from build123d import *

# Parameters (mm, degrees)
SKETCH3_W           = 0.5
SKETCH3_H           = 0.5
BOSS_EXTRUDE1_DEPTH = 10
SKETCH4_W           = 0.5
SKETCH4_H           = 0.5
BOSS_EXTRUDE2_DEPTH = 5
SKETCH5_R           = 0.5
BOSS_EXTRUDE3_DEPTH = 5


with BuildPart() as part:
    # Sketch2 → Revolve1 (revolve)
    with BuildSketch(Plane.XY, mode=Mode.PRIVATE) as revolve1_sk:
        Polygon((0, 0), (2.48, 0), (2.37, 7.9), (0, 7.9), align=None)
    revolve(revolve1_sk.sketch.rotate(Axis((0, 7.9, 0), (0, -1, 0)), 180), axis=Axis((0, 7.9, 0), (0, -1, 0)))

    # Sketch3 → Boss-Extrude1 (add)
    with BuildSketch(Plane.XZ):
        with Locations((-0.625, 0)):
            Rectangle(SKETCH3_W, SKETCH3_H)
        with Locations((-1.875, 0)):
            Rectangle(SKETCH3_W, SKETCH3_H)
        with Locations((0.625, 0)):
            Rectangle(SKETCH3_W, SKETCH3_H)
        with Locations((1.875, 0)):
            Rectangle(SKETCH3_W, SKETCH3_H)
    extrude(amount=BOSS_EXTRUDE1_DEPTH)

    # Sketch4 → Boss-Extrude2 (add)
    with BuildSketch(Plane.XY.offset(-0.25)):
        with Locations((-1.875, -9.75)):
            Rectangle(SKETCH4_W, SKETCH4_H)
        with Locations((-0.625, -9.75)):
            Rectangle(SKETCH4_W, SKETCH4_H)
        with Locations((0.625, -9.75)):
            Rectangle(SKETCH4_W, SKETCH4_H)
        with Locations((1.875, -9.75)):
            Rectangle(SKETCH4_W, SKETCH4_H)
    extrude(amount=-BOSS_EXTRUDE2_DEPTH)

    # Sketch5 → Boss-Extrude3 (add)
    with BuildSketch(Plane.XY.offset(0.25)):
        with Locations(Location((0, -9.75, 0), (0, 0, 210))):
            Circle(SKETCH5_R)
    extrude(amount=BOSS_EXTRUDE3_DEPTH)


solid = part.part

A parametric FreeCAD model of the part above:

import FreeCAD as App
import Part
import Sketcher
from FreeCAD import Vector
Q = App.Units.Quantity

doc = App.newDocument("Part")
body = doc.addObject("PartDesign::Body", "Body")

# Sketch on XY plane
sketch1 = doc.addObject("Sketcher::SketchObject", "Sketch")
body.addObject(sketch1)
sketch1.AttachmentSupport = (doc.XY_Plane, [""])
sketch1.MapMode = "FlatFace"
sketch1.addGeometry([
    Part.LineSegment(Vector(0, 0, 0), Vector(2.5, 0, 0)),
    Part.LineSegment(Vector(2.5, 0, 0), Vector(2.4, 7.9, 0)),
    Part.LineSegment(Vector(2.4, 7.9, 0), Vector(0, 7.9, 0)),
    Part.LineSegment(Vector(0, 7.9, 0), Vector(0, 0, 0)),
], False)
sketch1.addConstraint([
    Sketcher.Constraint("Coincident", 0, 2, 1, 1),
    Sketcher.Constraint("Coincident", 1, 2, 2, 1),
    Sketcher.Constraint("Coincident", 2, 2, 3, 1),
    Sketcher.Constraint("Coincident", 3, 2, 0, 1),
    Sketcher.Constraint("Horizontal", 0),
    Sketcher.Constraint("Horizontal", 2),
    Sketcher.Constraint("Vertical", 3),
    Sketcher.Constraint("Coincident", 3, 2, -1, 1),
    Sketcher.Constraint("DistanceY", 3, 2, 3, 1, Q("7.9 mm")),
    Sketcher.Constraint("DistanceX", 0, 1, 0, 2, Q("2.48 mm")),
    Sketcher.Constraint("DistanceX", 2, 2, 2, 1, Q("2.37 mm")),
])
revolution = doc.addObject("PartDesign::Revolution", "Revolution")
body.addObject(revolution)
revolution.Profile = sketch1
revolution.ReferenceAxis = (sketch1, ["V_Axis"])
revolution.Angle = 360

# Sketch on XZ plane
sketch2 = doc.addObject("Sketcher::SketchObject", "Sketch001")
body.addObject(sketch2)
sketch2.AttachmentSupport = (doc.XZ_Plane, [""])
sketch2.MapMode = "FlatFace"
sketch2.addGeometry([
    Part.LineSegment(Vector(-0.9, 0.2, 0), Vector(-0.9, -0.2, 0)),  # 0
    Part.LineSegment(Vector(-0.9, -0.2, 0), Vector(-0.4, -0.2, 0)),  # 1
    Part.LineSegment(Vector(-0.4, -0.2, 0), Vector(-0.4, 0.2, 0)),  # 2
    Part.LineSegment(Vector(-0.4, 0.2, 0), Vector(-0.9, 0.2, 0)),  # 3
    Part.LineSegment(Vector(-2.1, 0.2, 0), Vector(-2.1, -0.2, 0)),  # 4
    Part.LineSegment(Vector(-2.1, -0.2, 0), Vector(-1.6, -0.2, 0)),  # 5
    Part.LineSegment(Vector(-1.6, -0.2, 0), Vector(-1.6, 0.2, 0)),  # 6
    Part.LineSegment(Vector(-1.6, 0.2, 0), Vector(-2.1, 0.2, 0)),  # 7
    Part.LineSegment(Vector(0.4, 0.2, 0), Vector(0.4, -0.2, 0)),  # 8
    Part.LineSegment(Vector(0.4, -0.2, 0), Vector(0.9, -0.2, 0)),  # 9
    Part.LineSegment(Vector(0.9, -0.2, 0), Vector(0.9, 0.2, 0)),  # 10
    Part.LineSegment(Vector(0.9, 0.2, 0), Vector(0.4, 0.2, 0)),  # 11
    Part.LineSegment(Vector(1.6, 0.2, 0), Vector(1.6, -0.2, 0)),  # 12
    Part.LineSegment(Vector(1.6, -0.2, 0), Vector(2.1, -0.2, 0)),  # 13
    Part.LineSegment(Vector(2.1, -0.2, 0), Vector(2.1, 0.2, 0)),  # 14
    Part.LineSegment(Vector(2.1, 0.2, 0), Vector(1.6, 0.2, 0)),  # 15
], False)
sketch2.addConstraint([
    Sketcher.Constraint("Coincident", 0, 2, 1, 1),
    Sketcher.Constraint("Coincident", 1, 2, 2, 1),
    Sketcher.Constraint("Coincident", 2, 2, 3, 1),
    Sketcher.Constraint("Coincident", 3, 2, 0, 1),
    Sketcher.Constraint("Coincident", 4, 2, 5, 1),
    Sketcher.Constraint("Coincident", 5, 2, 6, 1),
    Sketcher.Constraint("Coincident", 6, 2, 7, 1),
    Sketcher.Constraint("Coincident", 7, 2, 4, 1),
    Sketcher.Constraint("Coincident", 8, 2, 9, 1),
    Sketcher.Constraint("Coincident", 9, 2, 10, 1),
    Sketcher.Constraint("Coincident", 10, 2, 11, 1),
    Sketcher.Constraint("Coincident", 11, 2, 8, 1),
    Sketcher.Constraint("Coincident", 12, 2, 13, 1),
    Sketcher.Constraint("Coincident", 13, 2, 14, 1),
    Sketcher.Constraint("Coincident", 14, 2, 15, 1),
    Sketcher.Constraint("Coincident", 15, 2, 12, 1),
    Sketcher.Constraint("Vertical", 0),
    Sketcher.Constraint("Horizontal", 1),
    Sketcher.Constraint("Vertical", 2),
    Sketcher.Constraint("Horizontal", 3),
    Sketcher.Constraint("Vertical", 4),
    Sketcher.Constraint("Horizontal", 5),
    Sketcher.Constraint("Vertical", 6),
    Sketcher.Constraint("Horizontal", 7),
    Sketcher.Constraint("Vertical", 8),
    Sketcher.Constraint("Horizontal", 9),
    Sketcher.Constraint("Vertical", 10),
    Sketcher.Constraint("Horizontal", 11),
    Sketcher.Constraint("Vertical", 12),
    Sketcher.Constraint("Horizontal", 13),
    Sketcher.Constraint("Vertical", 14),
    Sketcher.Constraint("Horizontal", 15),
    Sketcher.Constraint("Symmetric", 2, 2, 8, 2, -1, 1),
    Sketcher.Constraint("Symmetric", 0, 2, 10, 2, -1, 1),
    Sketcher.Constraint("Symmetric", 6, 2, 12, 2, -1, 1),
    Sketcher.Constraint("Symmetric", 4, 2, 14, 2, -1, 1),
    Sketcher.Constraint("Horizontal", 1, 2, 4, 2),
    Sketcher.Constraint("Horizontal", 3, 2, 6, 2),
    Sketcher.Constraint("Horizontal", 5, 2, 8, 2),
    Sketcher.Constraint("Equal", 3, 5),
    Sketcher.Constraint("Equal", 15, 0),
    Sketcher.Constraint("DistanceX", 1, 1, 1, 2, Q("0.5 mm")),
    Sketcher.Constraint("DistanceX", 5, 2, 8, 2, Q("2 mm")),
    Sketcher.Constraint("DistanceX", 4, 2, 0, 2, Q("1.25 mm")),
])
pad1 = doc.addObject("PartDesign::Pad", "Pad")
body.addObject(pad1)
pad1.Profile = sketch2
pad1.Length = 10

# Sketch on XY plane
sketch3 = doc.addObject("Sketcher::SketchObject", "Sketch002")
body.addObject(sketch3)
sketch3.AttachmentSupport = (doc.XY_Plane, [""])
sketch3.MapMode = "FlatFace"
sketch3.AttachmentOffset = App.Placement(Vector(0, 0, -0.25), App.Rotation())
sketch3.addGeometry([
    Part.LineSegment(Vector(-2.1, -9.5, 0), Vector(-2.1, -10, 0)),  # 0
    Part.LineSegment(Vector(-2.1, -10, 0), Vector(-1.6, -10, 0)),  # 1
    Part.LineSegment(Vector(-1.6, -10, 0), Vector(-1.6, -9.5, 0)),  # 2
    Part.LineSegment(Vector(-1.6, -9.5, 0), Vector(-2.1, -9.5, 0)),  # 3
    Part.LineSegment(Vector(-0.9, -9.5, 0), Vector(-0.9, -10, 0)),  # 4
    Part.LineSegment(Vector(-0.9, -10, 0), Vector(-0.4, -10, 0)),  # 5
    Part.LineSegment(Vector(-0.4, -10, 0), Vector(-0.4, -9.5, 0)),  # 6
    Part.LineSegment(Vector(-0.4, -9.5, 0), Vector(-0.9, -9.5, 0)),  # 7
    Part.LineSegment(Vector(0.4, -9.5, 0), Vector(0.4, -10, 0)),  # 8
    Part.LineSegment(Vector(0.4, -10, 0), Vector(0.9, -10, 0)),  # 9
    Part.LineSegment(Vector(0.9, -10, 0), Vector(0.9, -9.5, 0)),  # 10
    Part.LineSegment(Vector(0.9, -9.5, 0), Vector(0.4, -9.5, 0)),  # 11
    Part.LineSegment(Vector(1.6, -9.5, 0), Vector(1.6, -10, 0)),  # 12
    Part.LineSegment(Vector(1.6, -10, 0), Vector(2.1, -10, 0)),  # 13
    Part.LineSegment(Vector(2.1, -10, 0), Vector(2.1, -9.5, 0)),  # 14
    Part.LineSegment(Vector(2.1, -9.5, 0), Vector(1.6, -9.5, 0)),  # 15
], False)
sketch3.addConstraint([
    Sketcher.Constraint("Coincident", 0, 2, 1, 1),
    Sketcher.Constraint("Coincident", 1, 2, 2, 1),
    Sketcher.Constraint("Coincident", 2, 2, 3, 1),
    Sketcher.Constraint("Coincident", 3, 2, 0, 1),
    Sketcher.Constraint("Coincident", 4, 2, 5, 1),
    Sketcher.Constraint("Coincident", 5, 2, 6, 1),
    Sketcher.Constraint("Coincident", 6, 2, 7, 1),
    Sketcher.Constraint("Coincident", 7, 2, 4, 1),
    Sketcher.Constraint("Coincident", 8, 2, 9, 1),
    Sketcher.Constraint("Coincident", 9, 2, 10, 1),
    Sketcher.Constraint("Coincident", 10, 2, 11, 1),
    Sketcher.Constraint("Coincident", 11, 2, 8, 1),
    Sketcher.Constraint("Coincident", 12, 2, 13, 1),
    Sketcher.Constraint("Coincident", 13, 2, 14, 1),
    Sketcher.Constraint("Coincident", 14, 2, 15, 1),
    Sketcher.Constraint("Coincident", 15, 2, 12, 1),
    Sketcher.Constraint("Vertical", 0),
    Sketcher.Constraint("Horizontal", 1),
    Sketcher.Constraint("Vertical", 2),
    Sketcher.Constraint("Horizontal", 3),
    Sketcher.Constraint("Vertical", 4),
    Sketcher.Constraint("Horizontal", 5),
    Sketcher.Constraint("Vertical", 6),
    Sketcher.Constraint("Horizontal", 7),
    Sketcher.Constraint("Vertical", 8),
    Sketcher.Constraint("Horizontal", 9),
    Sketcher.Constraint("Vertical", 10),
    Sketcher.Constraint("Horizontal", 11),
    Sketcher.Constraint("Vertical", 12),
    Sketcher.Constraint("Horizontal", 13),
    Sketcher.Constraint("Vertical", 14),
    Sketcher.Constraint("Horizontal", 15),
    Sketcher.Constraint("Symmetric", 5, 2, 8, 2, -2),
    Sketcher.Constraint("Symmetric", 7, 2, 10, 2, -2),
    Sketcher.Constraint("Symmetric", 1, 2, 12, 2, -2),
    Sketcher.Constraint("Symmetric", 3, 2, 14, 2, -2),
    Sketcher.Constraint("Horizontal", 1, 2, 4, 2),
    Sketcher.Constraint("Horizontal", 3, 2, 6, 2),
    Sketcher.Constraint("Equal", 3, 5),
    Sketcher.Constraint("Equal", 15, 0),
    Sketcher.Constraint("DistanceX", 1, 1, 1, 2, Q("0.5 mm")),
    Sketcher.Constraint("DistanceY", 0, 2, -1, 1, Q("10 mm")),
    Sketcher.Constraint("DistanceX", 1, 2, 8, 2, Q("2 mm")),
    Sketcher.Constraint("DistanceX", 1, 2, 4, 2, Q("0.75 mm")),
])
pad2 = doc.addObject("PartDesign::Pad", "Pad001")
body.addObject(pad2)
pad2.Profile = sketch3
pad2.Length = 5
pad2.Reversed = True

# Sketch on XY plane
sketch4 = doc.addObject("Sketcher::SketchObject", "Sketch003")
body.addObject(sketch4)
sketch4.AttachmentSupport = (doc.XY_Plane, [""])
sketch4.MapMode = "FlatFace"
sketch4.AttachmentOffset = App.Placement(Vector(0, 0, 0.25), App.Rotation())
sketch4.addGeometry(Part.Circle(Vector(0, -9.8, 0), Vector(0, 0, 1), 0.5), False)
sketch4.addConstraint([
    Sketcher.Constraint("PointOnObject", 0, 3, -2),
    Sketcher.Constraint("Diameter", 0, Q("1 mm")),
    Sketcher.Constraint("DistanceY", 0, 3, -1, 1, Q("9.75 mm")),
])
pad3 = doc.addObject("PartDesign::Pad", "Pad002")
body.addObject(pad3)
pad3.Profile = sketch4
pad3.Length = 5

doc.recompute()
